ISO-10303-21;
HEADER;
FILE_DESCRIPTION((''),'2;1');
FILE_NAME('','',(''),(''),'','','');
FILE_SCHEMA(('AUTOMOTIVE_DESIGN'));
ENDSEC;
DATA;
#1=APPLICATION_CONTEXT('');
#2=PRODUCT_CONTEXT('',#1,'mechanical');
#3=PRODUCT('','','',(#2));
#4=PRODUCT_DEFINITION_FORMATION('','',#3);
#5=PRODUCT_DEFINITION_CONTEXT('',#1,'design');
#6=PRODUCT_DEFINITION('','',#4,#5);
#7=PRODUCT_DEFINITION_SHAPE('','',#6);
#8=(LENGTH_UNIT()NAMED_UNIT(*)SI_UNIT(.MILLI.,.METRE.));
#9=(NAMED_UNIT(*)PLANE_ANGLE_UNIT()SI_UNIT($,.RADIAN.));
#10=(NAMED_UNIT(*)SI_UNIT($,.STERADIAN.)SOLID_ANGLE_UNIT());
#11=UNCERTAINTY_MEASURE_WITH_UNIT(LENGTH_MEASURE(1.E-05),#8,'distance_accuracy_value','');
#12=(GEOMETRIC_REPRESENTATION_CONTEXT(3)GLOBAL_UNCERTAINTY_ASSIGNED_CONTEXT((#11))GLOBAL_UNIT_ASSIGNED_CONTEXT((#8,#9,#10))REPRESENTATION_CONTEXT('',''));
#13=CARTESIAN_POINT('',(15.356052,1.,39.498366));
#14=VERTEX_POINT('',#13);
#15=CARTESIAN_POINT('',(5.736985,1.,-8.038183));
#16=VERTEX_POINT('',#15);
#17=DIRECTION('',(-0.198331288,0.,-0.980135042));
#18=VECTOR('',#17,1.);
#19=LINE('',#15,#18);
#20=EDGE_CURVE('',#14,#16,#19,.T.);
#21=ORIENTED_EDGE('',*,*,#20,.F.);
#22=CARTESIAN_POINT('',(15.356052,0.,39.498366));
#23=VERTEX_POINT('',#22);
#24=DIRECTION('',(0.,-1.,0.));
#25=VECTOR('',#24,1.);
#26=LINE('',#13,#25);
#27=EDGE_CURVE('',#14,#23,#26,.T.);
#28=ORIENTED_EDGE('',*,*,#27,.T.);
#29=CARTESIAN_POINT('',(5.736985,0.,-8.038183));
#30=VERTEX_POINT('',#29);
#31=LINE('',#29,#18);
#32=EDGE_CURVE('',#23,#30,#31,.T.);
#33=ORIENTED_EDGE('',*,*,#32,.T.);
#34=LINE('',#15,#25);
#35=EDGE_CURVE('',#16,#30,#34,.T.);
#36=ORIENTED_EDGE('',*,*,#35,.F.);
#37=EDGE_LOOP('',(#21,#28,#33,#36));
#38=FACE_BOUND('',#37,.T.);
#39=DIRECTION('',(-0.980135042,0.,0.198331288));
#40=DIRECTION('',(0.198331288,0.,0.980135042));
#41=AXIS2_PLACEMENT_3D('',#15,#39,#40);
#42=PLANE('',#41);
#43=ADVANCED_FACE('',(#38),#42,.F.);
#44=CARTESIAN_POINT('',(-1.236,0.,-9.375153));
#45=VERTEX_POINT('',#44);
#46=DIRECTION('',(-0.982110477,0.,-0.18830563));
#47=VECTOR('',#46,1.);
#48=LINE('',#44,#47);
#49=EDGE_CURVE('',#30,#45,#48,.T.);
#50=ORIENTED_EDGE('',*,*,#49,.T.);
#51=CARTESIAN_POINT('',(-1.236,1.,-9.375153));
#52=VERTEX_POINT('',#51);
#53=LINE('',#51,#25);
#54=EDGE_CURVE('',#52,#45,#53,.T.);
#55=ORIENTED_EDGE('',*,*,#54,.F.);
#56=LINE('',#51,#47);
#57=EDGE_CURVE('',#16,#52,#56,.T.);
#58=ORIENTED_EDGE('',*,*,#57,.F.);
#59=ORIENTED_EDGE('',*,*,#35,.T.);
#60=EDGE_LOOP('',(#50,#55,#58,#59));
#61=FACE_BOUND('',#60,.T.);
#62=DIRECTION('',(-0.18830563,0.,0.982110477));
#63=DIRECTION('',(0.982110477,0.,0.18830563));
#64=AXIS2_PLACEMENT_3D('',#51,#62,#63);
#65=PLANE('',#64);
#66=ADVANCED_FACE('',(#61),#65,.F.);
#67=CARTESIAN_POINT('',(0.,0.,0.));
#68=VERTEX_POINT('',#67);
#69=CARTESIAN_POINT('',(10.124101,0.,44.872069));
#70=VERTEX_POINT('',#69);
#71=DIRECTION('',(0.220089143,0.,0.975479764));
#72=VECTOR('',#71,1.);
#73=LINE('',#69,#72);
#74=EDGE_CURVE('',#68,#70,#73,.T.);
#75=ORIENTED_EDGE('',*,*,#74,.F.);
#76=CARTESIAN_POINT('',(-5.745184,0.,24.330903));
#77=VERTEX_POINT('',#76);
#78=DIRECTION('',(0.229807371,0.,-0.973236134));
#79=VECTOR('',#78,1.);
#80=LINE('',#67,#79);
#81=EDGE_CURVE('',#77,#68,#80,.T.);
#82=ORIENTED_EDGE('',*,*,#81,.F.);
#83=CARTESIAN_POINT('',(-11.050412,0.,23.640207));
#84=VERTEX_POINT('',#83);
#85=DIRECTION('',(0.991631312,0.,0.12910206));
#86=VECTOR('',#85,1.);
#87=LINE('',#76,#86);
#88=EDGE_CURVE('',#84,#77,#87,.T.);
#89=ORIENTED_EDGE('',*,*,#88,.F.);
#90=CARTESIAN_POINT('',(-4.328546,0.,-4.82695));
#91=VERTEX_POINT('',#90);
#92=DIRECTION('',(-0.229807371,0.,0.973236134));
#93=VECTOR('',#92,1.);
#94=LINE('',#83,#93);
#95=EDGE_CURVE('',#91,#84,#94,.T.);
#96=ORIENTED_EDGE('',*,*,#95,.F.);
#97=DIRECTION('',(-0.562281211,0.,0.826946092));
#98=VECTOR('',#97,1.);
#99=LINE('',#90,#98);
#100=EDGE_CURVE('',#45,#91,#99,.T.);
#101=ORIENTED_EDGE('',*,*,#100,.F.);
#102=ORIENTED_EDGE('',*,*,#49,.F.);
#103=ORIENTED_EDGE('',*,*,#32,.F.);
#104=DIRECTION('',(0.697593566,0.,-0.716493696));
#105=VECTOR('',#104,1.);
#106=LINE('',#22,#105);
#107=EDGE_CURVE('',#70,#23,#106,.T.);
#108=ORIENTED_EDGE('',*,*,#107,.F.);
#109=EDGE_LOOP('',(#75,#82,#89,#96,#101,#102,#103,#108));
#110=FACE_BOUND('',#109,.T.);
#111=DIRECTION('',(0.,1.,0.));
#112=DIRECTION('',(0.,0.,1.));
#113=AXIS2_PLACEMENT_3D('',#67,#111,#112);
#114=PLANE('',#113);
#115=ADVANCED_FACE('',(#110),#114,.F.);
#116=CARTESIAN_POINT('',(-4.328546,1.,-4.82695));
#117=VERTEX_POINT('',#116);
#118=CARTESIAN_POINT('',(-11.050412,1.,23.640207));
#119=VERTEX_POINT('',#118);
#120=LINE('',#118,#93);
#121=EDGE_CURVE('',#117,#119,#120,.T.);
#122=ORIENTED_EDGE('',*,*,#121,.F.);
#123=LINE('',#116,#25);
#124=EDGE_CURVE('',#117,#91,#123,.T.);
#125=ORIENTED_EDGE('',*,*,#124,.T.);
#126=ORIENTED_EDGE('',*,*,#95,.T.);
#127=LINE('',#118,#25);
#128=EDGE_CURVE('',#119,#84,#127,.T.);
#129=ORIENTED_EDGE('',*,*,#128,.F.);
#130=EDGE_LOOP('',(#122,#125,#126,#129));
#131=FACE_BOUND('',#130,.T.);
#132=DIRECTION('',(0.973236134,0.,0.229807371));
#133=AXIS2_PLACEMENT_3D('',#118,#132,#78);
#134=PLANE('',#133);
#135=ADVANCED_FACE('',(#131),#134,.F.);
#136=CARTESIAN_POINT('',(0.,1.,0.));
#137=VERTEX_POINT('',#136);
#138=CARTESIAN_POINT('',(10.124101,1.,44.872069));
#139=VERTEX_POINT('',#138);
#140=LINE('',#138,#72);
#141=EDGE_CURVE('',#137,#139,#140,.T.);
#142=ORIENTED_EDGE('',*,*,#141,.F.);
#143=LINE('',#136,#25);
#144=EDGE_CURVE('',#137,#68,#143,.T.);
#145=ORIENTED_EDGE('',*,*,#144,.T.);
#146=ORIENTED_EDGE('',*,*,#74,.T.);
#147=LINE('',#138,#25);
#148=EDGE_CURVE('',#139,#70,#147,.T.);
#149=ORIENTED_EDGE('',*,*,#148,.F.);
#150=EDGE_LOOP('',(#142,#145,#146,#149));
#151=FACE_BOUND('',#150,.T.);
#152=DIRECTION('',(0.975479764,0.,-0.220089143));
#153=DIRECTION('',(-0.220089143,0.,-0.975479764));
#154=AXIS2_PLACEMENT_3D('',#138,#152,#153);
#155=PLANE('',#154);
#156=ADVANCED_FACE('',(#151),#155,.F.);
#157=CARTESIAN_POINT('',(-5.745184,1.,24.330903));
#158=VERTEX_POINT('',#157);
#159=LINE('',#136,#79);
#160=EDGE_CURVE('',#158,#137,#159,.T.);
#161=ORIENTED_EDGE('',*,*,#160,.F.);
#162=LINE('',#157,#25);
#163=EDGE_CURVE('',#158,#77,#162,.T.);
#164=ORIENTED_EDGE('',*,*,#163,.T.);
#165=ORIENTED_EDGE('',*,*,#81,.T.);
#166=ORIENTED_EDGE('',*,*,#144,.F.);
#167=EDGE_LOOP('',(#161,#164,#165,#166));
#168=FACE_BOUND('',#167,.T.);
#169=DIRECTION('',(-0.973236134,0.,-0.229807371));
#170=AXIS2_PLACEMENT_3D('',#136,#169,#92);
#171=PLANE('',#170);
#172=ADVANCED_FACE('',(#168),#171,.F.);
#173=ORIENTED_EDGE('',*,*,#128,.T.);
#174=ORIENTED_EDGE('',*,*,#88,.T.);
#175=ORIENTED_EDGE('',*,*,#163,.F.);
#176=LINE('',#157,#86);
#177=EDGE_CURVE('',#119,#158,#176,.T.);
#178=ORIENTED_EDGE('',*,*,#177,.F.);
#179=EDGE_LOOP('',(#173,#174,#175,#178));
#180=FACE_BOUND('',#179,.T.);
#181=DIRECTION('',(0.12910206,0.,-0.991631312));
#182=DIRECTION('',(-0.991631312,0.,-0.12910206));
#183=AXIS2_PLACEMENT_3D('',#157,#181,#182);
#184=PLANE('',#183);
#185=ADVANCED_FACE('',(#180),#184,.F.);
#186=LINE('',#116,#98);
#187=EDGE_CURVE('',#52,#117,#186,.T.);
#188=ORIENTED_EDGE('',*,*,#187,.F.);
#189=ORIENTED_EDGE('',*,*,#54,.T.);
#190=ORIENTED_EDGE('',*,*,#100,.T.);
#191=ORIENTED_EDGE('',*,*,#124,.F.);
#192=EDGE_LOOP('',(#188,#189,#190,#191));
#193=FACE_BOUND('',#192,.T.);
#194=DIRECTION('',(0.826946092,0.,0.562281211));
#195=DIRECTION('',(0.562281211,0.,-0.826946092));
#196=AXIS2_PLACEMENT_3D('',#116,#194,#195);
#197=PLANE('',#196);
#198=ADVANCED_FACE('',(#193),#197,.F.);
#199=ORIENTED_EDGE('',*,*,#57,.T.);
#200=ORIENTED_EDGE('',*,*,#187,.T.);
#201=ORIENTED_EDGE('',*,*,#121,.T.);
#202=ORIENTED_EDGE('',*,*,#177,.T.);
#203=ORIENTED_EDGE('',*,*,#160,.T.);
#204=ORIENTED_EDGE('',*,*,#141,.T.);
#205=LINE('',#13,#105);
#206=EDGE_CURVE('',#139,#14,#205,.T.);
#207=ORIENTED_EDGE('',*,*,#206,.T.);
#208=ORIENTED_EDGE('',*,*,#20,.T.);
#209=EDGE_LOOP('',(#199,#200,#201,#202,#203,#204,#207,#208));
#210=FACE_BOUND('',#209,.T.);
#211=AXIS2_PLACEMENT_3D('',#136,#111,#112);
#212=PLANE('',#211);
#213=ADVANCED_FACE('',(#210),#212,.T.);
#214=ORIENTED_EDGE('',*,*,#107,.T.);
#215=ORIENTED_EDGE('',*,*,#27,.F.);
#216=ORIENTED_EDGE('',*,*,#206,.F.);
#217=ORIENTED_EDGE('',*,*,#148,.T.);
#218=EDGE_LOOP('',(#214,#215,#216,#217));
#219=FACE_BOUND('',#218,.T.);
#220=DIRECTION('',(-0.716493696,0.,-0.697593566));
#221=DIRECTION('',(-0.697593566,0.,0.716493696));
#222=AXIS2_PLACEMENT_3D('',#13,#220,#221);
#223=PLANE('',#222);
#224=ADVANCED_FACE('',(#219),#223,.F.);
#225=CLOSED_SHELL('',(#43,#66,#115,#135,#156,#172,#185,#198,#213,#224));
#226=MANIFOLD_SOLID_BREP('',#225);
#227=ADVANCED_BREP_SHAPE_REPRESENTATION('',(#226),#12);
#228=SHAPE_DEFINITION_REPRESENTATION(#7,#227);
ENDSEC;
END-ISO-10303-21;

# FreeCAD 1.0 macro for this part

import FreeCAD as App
import Part
import Sketcher
Q = App.Units.Quantity

doc = App.newDocument("Part")
params = doc.addObject("Spreadsheet::Sheet", "Params")
for row, (alias, value) in enumerate([
    ("sketch1_length", "25 mm"),
    ("sketch1_length2", "46 mm"),
    ("sketch1_length3", "7.5 mm"),
    ("sketch1_length4", "48.5 mm"),
    ("sketch1_length5", "7.1 mm"),
    ("pad1_length", "1 mm"),
], start=1):
    params.set(f"A{row}", alias)
    params.set(f"B{row}", "=" + value)
    params.setAlias(f"B{row}", alias)

body = doc.addObject("PartDesign::Body", "Body")

sketch1 = body.newObject("Sketcher::SketchObject", "Sketch")
sketch1.AttachmentSupport = (doc.getObject("XZ_Plane"), [""])
sketch1.MapMode = "FlatFace"
sketch1.addGeometry([
    Part.LineSegment(App.Vector(-6, 24, 0), App.Vector(0, 0, 0)),
    Part.LineSegment(App.Vector(0, 0, 0), App.Vector(10, 45, 0)),
    Part.LineSegment(App.Vector(10, 45, 0), App.Vector(15, 39, 0)),
    Part.LineSegment(App.Vector(15, 39, 0), App.Vector(6, -8, 0)),
    Part.LineSegment(App.Vector(6, -8, 0), App.Vector(-1, -9, 0)),
    Part.LineSegment(App.Vector(-1, -9, 0), App.Vector(-4, -5, 0)),
    Part.LineSegment(App.Vector(-4, -5, 0), App.Vector(-11, 24, 0)),
    Part.LineSegment(App.Vector(-11, 24, 0), App.Vector(-6, 24, 0)),
], False)
sketch1.addConstraint([
    Sketcher.Constraint("Coincident", 0, 2, 1, 1),
    Sketcher.Constraint("Coincident", 1, 2, 2, 1),
    Sketcher.Constraint("Coincident", 2, 2, 3, 1),
    Sketcher.Constraint("Coincident", 3, 2, 4, 1),
    Sketcher.Constraint("Coincident", 4, 2, 5, 1),
    Sketcher.Constraint("Coincident", 5, 2, 6, 1),
    Sketcher.Constraint("Coincident", 6, 2, 7, 1),
    Sketcher.Constraint("Coincident", 7, 2, 0, 1),
    Sketcher.Constraint("Coincident", 0, 2, -1, 1),
    Sketcher.Constraint("Parallel", 0, 6),
    Sketcher.Constraint("Distance", 0, Q("25 mm")),
    Sketcher.Constraint("Distance", 1, Q("46 mm")),
    Sketcher.Constraint("Distance", 2, Q("7.5 mm")),
    Sketcher.Constraint("Distance", 3, Q("48.5 mm")),
    Sketcher.Constraint("Distance", 4, Q("7.1 mm")),
    Sketcher.Constraint("Distance", 5, Q("5.5 mm")),
    Sketcher.Constraint("Distance", 6, Q("29.25 mm")),
    Sketcher.Constraint("Distance", 7, Q("5.35 mm")),
    Sketcher.Constraint("DistanceX", 4, 2, -1, 1, Q("1.236 mm")),
    Sketcher.Constraint("DistanceX", -1, 1, 1, 2, Q("10.124101 mm")),
    Sketcher.Constraint("DistanceX", 5, 2, 2, 2, Q("19.684599 mm")),
    Sketcher.Constraint("DistanceY", 5, 2, -1, 1, Q("4.82695 mm")),
    Sketcher.Constraint("DistanceX", 6, 2, -1, 1, Q("11.050412 mm")),
])
sketch1.setExpression("Constraints[10]", "Params.sketch1_length")
sketch1.setExpression("Constraints[11]", "Params.sketch1_length2")
sketch1.setExpression("Constraints[12]", "Params.sketch1_length3")
sketch1.setExpression("Constraints[13]", "Params.sketch1_length4")
sketch1.setExpression("Constraints[14]", "Params.sketch1_length5")
pad1 = body.newObject("PartDesign::Pad", "Pad")
pad1.Profile = sketch1
pad1.setExpression("Length", "Params.pad1_length")
pad1.Reversed = True

doc.recompute()
